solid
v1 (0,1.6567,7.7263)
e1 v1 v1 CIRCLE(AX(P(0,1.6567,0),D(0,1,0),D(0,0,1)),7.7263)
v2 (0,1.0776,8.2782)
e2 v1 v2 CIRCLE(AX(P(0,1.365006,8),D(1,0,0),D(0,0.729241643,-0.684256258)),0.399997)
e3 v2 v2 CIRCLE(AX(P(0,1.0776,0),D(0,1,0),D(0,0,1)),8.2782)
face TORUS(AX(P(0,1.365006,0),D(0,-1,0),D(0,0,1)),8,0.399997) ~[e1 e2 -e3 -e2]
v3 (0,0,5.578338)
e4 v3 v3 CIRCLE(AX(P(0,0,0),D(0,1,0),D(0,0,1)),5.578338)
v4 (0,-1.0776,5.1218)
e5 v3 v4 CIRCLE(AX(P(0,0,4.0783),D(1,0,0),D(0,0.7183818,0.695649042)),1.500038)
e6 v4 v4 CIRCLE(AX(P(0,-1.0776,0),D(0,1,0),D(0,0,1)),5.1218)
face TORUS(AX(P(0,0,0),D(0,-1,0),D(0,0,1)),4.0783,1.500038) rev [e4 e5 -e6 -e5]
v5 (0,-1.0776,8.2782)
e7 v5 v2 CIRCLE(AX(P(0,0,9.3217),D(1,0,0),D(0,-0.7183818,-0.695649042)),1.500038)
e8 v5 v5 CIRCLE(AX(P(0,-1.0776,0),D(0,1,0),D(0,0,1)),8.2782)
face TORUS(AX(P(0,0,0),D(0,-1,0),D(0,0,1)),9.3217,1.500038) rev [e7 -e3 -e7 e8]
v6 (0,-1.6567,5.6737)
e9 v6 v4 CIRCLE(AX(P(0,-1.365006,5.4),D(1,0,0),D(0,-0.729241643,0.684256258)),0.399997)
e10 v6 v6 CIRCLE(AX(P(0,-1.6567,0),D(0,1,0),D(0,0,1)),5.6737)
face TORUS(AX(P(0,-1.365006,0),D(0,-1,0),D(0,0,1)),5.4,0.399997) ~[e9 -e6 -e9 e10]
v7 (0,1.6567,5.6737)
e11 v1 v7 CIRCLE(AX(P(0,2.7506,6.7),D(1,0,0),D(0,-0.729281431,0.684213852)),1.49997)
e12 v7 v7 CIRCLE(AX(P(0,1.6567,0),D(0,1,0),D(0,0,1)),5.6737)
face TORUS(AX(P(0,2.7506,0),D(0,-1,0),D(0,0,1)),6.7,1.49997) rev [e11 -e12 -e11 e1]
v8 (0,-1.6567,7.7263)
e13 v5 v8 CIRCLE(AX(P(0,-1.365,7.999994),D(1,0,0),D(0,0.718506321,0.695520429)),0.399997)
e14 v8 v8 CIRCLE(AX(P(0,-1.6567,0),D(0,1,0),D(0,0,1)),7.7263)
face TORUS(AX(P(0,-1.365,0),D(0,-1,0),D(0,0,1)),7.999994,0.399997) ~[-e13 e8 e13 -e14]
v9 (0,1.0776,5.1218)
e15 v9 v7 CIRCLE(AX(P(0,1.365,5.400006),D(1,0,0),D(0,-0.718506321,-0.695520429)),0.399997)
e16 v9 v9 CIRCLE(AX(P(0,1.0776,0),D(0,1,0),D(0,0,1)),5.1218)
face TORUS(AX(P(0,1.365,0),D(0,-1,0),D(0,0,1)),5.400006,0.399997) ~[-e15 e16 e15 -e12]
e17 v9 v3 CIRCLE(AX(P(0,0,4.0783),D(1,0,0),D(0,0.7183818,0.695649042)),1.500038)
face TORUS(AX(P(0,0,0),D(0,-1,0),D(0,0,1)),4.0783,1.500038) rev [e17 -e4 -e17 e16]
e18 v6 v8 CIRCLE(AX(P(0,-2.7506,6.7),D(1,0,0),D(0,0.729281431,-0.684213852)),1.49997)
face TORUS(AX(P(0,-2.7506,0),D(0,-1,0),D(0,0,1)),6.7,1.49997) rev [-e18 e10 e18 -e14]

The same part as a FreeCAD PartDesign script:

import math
import FreeCAD as App
import Part
import Sketcher

doc = App.newDocument("Part")
body = doc.addObject("PartDesign::Body", "Body")

# Sketch on YZ plane
sketch1 = body.newObject("Sketcher::SketchObject", "Sketch")
sketch1.AttachmentSupport = (doc.getObject("YZ_Plane"), [""])
sketch1.MapMode = "FlatFace"
sketch1.addGeometry(Part.ArcOfCircle(Part.Circle(App.Vector(-1.36, 8, 0), App.Vector(0, 0, 1), 0.4), math.radians(44), math.radians(223)), False)
sketch1.addGeometry(Part.ArcOfCircle(Part.Circle(App.Vector(-2.75, 6.7, 0), App.Vector(0, 0, 1), 1.5), math.radians(-43), math.radians(43)), False)
sketch1.addGeometry(Part.ArcOfCircle(Part.Circle(App.Vector(-1.36, 5.4, 0), App.Vector(0, 0, 1), 0.4), math.radians(137), math.radians(316)), False)
sketch1.addGeometry(Part.ArcOfCircle(Part.Circle(App.Vector(0, 4.08, 0), App.Vector(0, 0, 1), 1.5), math.radians(44), math.radians(136)), False)
sketch1.addGeometry(Part.ArcOfCircle(Part.Circle(App.Vector(1.36, 5.4, 0), App.Vector(0, 0, 1), 0.4), math.radians(-136), math.radians(43)), False)
sketch1.addGeometry(Part.ArcOfCircle(Part.Circle(App.Vector(2.75, 6.7, 0), App.Vector(0, 0, 1), 1.5), math.radians(137), math.radians(223)), False)
sketch1.addGeometry(Part.ArcOfCircle(Part.Circle(App.Vector(1.36, 8, 0), App.Vector(0, 0, 1), 0.4), math.radians(-43), math.radians(136)), False)
sketch1.addGeometry(Part.ArcOfCircle(Part.Circle(App.Vector(0, 9.32, 0), App.Vector(0, 0, 1), 1.5), math.radians(-136), math.radians(-44)), False)
sketch1.addConstraint(Sketcher.Constraint("Tangent", 0, 2, 1, 2))
sketch1.addConstraint(Sketcher.Constraint("Tangent", 1, 1, 2, 1))
sketch1.addConstraint(Sketcher.Constraint("Tangent", 2, 2, 3, 2))
sketch1.addConstraint(Sketcher.Constraint("Tangent", 3, 1, 4, 1))
sketch1.addConstraint(Sketcher.Constraint("Tangent", 4, 2, 5, 2))
sketch1.addConstraint(Sketcher.Constraint("Tangent", 5, 1, 6, 1))
sketch1.addConstraint(Sketcher.Constraint("Tangent", 6, 2, 7, 2))
sketch1.addConstraint(Sketcher.Constraint("Tangent", 7, 1, 0, 1))
sketch1.addConstraint(Sketcher.Constraint("Equal", 0, 2))
sketch1.addConstraint(Sketcher.Constraint("Equal", 1, 3))
sketch1.addConstraint(Sketcher.Constraint("Equal", 2, 4))
sketch1.addConstraint(Sketcher.Constraint("Equal", 3, 5))
sketch1.addConstraint(Sketcher.Constraint("Equal", 4, 6))
sketch1.addConstraint(Sketcher.Constraint("Equal", 5, 7))
sketch1.addConstraint(Sketcher.Constraint("Symmetric", 2, 3, 4, 3, -2))
sketch1.addConstraint(Sketcher.Constraint("Symmetric", 0, 3, 6, 3, -2))
sketch1.addConstraint(Sketcher.Constraint("Vertical", 0, 3, 2, 3))
sketch1.addConstraint(Sketcher.Constraint("Radius", 0, 0.4))
sketch1.addConstraint(Sketcher.Constraint("Radius", 1, 1.5))
sketch1.addConstraint(Sketcher.Constraint("DistanceY", -1, 1, 0, 3, 8.0))
sketch1.addConstraint(Sketcher.Constraint("DistanceY", -1, 1, 1, 3, 6.7))
sketch1.addConstraint(Sketcher.Constraint("DistanceX", 2, 3, 4, 3, 2.73))
revolution = body.newObject("PartDesign::Revolution", "Revolution")
revolution.Profile = sketch1
revolution.ReferenceAxis = (sketch1, ["H_Axis"])
revolution.Angle = 360

doc.recompute()
